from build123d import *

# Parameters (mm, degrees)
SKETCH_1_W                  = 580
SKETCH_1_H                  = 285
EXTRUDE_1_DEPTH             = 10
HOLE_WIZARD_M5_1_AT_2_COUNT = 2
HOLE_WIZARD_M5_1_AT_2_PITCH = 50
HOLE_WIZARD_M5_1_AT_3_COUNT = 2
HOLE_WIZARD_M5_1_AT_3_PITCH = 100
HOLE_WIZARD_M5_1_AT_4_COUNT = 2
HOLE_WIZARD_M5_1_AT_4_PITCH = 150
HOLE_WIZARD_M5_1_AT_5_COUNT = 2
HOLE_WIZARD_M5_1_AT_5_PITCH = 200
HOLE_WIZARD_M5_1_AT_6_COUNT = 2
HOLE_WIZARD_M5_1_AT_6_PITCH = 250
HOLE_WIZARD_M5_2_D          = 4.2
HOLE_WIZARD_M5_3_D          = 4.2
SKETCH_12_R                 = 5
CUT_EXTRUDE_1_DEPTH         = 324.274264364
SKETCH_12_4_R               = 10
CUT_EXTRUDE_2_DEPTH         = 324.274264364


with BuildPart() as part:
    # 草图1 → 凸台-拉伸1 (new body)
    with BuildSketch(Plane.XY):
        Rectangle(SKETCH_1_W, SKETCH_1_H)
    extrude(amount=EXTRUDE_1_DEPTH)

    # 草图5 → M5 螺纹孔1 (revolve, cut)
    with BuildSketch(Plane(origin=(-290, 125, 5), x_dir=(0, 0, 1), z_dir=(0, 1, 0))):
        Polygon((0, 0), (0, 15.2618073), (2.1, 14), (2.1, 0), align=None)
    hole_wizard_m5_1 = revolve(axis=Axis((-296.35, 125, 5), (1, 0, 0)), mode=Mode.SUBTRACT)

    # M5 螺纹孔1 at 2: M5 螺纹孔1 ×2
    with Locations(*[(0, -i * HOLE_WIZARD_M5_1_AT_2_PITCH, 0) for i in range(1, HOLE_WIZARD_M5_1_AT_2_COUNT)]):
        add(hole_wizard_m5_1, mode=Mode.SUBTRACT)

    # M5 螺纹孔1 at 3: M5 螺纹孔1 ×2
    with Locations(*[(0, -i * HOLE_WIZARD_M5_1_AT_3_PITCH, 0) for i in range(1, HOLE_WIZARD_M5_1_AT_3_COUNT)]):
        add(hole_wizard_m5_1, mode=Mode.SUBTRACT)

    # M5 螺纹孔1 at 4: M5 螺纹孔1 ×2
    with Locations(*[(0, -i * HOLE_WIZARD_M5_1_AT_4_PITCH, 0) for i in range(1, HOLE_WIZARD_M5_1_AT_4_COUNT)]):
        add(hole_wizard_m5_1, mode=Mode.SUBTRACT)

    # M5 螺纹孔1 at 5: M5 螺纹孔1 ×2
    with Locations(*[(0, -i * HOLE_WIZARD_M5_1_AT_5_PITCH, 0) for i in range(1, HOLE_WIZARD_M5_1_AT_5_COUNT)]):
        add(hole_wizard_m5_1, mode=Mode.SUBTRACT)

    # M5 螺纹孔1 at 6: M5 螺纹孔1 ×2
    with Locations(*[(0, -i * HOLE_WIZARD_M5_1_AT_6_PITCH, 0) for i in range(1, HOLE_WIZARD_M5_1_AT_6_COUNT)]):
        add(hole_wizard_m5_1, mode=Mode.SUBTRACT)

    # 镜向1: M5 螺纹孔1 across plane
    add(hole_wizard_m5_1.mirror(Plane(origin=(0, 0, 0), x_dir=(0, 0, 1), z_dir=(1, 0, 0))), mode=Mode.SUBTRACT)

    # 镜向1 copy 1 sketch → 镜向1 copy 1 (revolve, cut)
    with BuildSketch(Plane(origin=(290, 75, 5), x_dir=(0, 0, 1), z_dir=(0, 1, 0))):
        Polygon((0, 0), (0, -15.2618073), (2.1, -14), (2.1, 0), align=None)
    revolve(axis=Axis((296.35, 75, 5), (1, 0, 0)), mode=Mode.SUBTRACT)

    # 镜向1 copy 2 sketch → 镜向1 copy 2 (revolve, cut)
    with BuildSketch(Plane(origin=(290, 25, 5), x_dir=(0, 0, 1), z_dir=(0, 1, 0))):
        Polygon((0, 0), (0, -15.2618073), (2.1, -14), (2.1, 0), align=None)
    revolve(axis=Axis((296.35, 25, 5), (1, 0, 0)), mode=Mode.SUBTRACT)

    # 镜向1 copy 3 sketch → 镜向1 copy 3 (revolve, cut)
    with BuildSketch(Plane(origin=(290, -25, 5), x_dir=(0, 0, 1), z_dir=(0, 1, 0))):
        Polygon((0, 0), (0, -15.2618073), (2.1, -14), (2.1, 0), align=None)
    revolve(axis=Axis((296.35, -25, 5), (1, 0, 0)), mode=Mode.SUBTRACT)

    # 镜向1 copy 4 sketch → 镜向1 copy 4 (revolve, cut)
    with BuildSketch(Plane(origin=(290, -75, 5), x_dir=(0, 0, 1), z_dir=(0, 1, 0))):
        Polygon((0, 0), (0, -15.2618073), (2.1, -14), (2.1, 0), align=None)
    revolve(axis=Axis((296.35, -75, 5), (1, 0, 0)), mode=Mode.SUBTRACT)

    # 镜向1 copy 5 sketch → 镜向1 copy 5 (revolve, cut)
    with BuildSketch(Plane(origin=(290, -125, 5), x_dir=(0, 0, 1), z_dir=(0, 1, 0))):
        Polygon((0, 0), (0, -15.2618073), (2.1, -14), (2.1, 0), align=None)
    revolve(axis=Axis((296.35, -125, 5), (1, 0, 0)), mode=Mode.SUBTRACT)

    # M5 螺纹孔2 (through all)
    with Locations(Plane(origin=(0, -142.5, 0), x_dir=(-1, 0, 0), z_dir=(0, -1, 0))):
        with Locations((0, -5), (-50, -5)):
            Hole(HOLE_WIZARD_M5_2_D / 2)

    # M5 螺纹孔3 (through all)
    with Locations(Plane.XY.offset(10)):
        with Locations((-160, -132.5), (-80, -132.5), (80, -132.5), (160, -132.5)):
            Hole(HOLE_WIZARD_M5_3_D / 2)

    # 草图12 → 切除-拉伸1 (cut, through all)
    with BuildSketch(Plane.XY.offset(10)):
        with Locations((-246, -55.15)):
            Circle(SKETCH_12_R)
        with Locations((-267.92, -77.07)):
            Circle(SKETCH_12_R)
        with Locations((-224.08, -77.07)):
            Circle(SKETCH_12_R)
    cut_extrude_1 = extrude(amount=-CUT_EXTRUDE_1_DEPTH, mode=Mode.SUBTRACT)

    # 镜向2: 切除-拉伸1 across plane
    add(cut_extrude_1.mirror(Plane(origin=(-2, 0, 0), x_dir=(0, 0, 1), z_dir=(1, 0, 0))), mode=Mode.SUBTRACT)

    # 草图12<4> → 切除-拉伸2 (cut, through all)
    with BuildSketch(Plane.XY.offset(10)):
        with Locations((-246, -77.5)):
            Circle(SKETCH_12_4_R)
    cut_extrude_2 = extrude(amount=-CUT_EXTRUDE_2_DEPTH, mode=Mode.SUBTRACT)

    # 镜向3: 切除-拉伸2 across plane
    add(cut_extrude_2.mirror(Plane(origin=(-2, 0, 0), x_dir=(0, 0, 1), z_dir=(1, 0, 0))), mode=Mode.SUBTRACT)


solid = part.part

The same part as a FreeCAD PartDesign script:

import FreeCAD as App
import Part
import Sketcher
from FreeCAD import Vector
Q = App.Units.Quantity

doc = App.newDocument("Part")
body = doc.addObject("PartDesign::Body", "Body")

# Sketch on XY plane
sketch1 = doc.addObject("Sketcher::SketchObject", "Sketch")
body.addObject(sketch1)
sketch1.AttachmentSupport = (doc.XY_Plane, [""])
sketch1.MapMode = "FlatFace"
sketch1.addGeometry([
    Part.LineSegment(Vector(-290, 142, 0), Vector(-290, -142, 0)),
    Part.LineSegment(Vector(-290, -142, 0), Vector(290, -142, 0)),
    Part.LineSegment(Vector(290, -142, 0), Vector(290, 142, 0)),
    Part.LineSegment(Vector(290, 142, 0), Vector(-290, 142, 0)),
], False)
sketch1.addConstraint([
    Sketcher.Constraint("Coincident", 0, 2, 1, 1),
    Sketcher.Constraint("Coincident", 1, 2, 2, 1),
    Sketcher.Constraint("Coincident", 2, 2, 3, 1),
    Sketcher.Constraint("Coincident", 3, 2, 0, 1),
    Sketcher.Constraint("Vertical", 0),
    Sketcher.Constraint("Horizontal", 1),
    Sketcher.Constraint("Vertical", 2),
    Sketcher.Constraint("Horizontal", 3),
    Sketcher.Constraint("Symmetric", 0, 2, 2, 2, -1, 1),
    Sketcher.Constraint("DistanceX", 1, 1, 1, 2, Q("580 mm")),
    Sketcher.Constraint("DistanceY", 0, 2, 0, 1, Q("285 mm")),
])
pad1 = doc.addObject("PartDesign::Pad", "Pad")
body.addObject(pad1)
pad1.Profile = sketch1
pad1.Length = 10

# Sketch on XZ plane
sketch2 = doc.addObject("Sketcher::SketchObject", "Sketch001")
body.addObject(sketch2)
sketch2.AttachmentSupport = (doc.XZ_Plane, [""])
sketch2.MapMode = "FlatFace"
sketch2.AttachmentOffset = App.Placement(Vector(0, 0, -125), App.Rotation())
sketch2.addGeometry([
    Part.LineSegment(Vector(-274.7, 5, 0), Vector(-290, 5, 0)),
    Part.LineSegment(Vector(-290, 5, 0), Vector(-290, 7.1, 0)),
    Part.LineSegment(Vector(-290, 7.1, 0), Vector(-276, 7.1, 0)),
    Part.LineSegment(Vector(-276, 7.1, 0), Vector(-274.7, 5, 0)),
], False)
sketch2.addGeometry(Part.LineSegment(Vector(-290, 5, 0), Vector(-274.7, 5, 0)), True)  # axis
sketch2.addConstraint([
    Sketcher.Constraint("Coincident", 0, 2, 1, 1),
    Sketcher.Constraint("Coincident", 1, 2, 2, 1),
    Sketcher.Constraint("Coincident", 2, 2, 3, 1),
    Sketcher.Constraint("Coincident", 3, 2, 0, 1),
    Sketcher.Constraint("Horizontal", 0),
    Sketcher.Constraint("Vertical", 1),
    Sketcher.Constraint("Horizontal", 2),
    Sketcher.Constraint("Horizontal", 4),
    Sketcher.Constraint("Coincident", 4, 1, 0, 2),
    Sketcher.Constraint("Equal", 0, 4),
    Sketcher.Constraint("DistanceX", 2, 1, 2, 2, Q("14 mm")),
    Sketcher.Constraint("Angle", 3, Q("-59 deg")),
    Sketcher.Constraint("DistanceY", 1, 1, 1, 2, Q("2.1 mm")),
    Sketcher.Constraint("DistanceX", 0, 2, -1, 1, Q("290 mm")),
    Sketcher.Constraint("DistanceY", -1, 1, 0, 2, Q("5 mm")),
])
groove = doc.addObject("PartDesign::Groove", "Groove")
body.addObject(groove)
groove.Profile = sketch2
groove.ReferenceAxis = (sketch2, ["Axis0"])
groove.Angle = 360
doc.recompute()

linearpattern = doc.addObject("PartDesign::LinearPattern", "LinearPattern")
body.addObject(linearpattern)
linearpattern.Originals = [groove]
linearpattern.Direction = (doc.Y_Axis, [""])
linearpattern.Mode = "offset"
linearpattern.Offset = 50
linearpattern.Occurrences = 2
linearpattern.Reversed = True
body.Tip = linearpattern
doc.recompute()

linearpattern2 = doc.addObject("PartDesign::LinearPattern", "LinearPattern001")
body.addObject(linearpattern2)
linearpattern2.Originals = [groove]
linearpattern2.Direction = (doc.Y_Axis, [""])
linearpattern2.Mode = "offset"
linearpattern2.Offset = 100
linearpattern2.Occurrences = 2
linearpattern2.Reversed = True
body.Tip = linearpattern2
doc.recompute()

linearpattern3 = doc.addObject("PartDesign::LinearPattern", "LinearPattern002")
body.addObject(linearpattern3)
linearpattern3.Originals = [groove]
linearpattern3.Direction = (doc.Y_Axis, [""])
linearpattern3.Mode = "offset"
linearpattern3.Offset = 150
linearpattern3.Occurrences = 2
linearpattern3.Reversed = True
body.Tip = linearpattern3
doc.recompute()

linearpattern4 = doc.addObject("PartDesign::LinearPattern", "LinearPattern003")
body.addObject(linearpattern4)
linearpattern4.Originals = [groove]
linearpattern4.Direction = (doc.Y_Axis, [""])
linearpattern4.Mode = "offset"
linearpattern4.Offset = 200
linearpattern4.Occurrences = 2
linearpattern4.Reversed = True
body.Tip = linearpattern4
doc.recompute()

linearpattern5 = doc.addObject("PartDesign::LinearPattern", "LinearPattern004")
body.addObject(linearpattern5)
linearpattern5.Originals = [groove]
linearpattern5.Direction = (doc.Y_Axis, [""])
linearpattern5.Mode = "offset"
linearpattern5.Offset = 250
linearpattern5.Occurrences = 2
linearpattern5.Reversed = True
body.Tip = linearpattern5
doc.recompute()

mirrored = doc.addObject("PartDesign::Mirrored", "Mirrored")
body.addObject(mirrored)
mirrored.Originals = [groove]
mirrored.MirrorPlane = (doc.YZ_Plane, [""])
body.Tip = mirrored

# Sketch on XZ plane
sketch3 = doc.addObject("Sketcher::SketchObject", "Sketch002")
body.addObject(sketch3)
sketch3.AttachmentSupport = (doc.XZ_Plane, [""])
sketch3.MapMode = "FlatFace"
sketch3.AttachmentOffset = App.Placement(Vector(0, 0, -75), App.Rotation())
sketch3.addGeometry([
    Part.LineSegment(Vector(290, 5, 0), Vector(274.7, 5, 0)),
    Part.LineSegment(Vector(274.7, 5, 0), Vector(276, 7.1, 0)),
    Part.LineSegment(Vector(276, 7.1, 0), Vector(290, 7.1, 0)),
    Part.LineSegment(Vector(290, 7.1, 0), Vector(290, 5, 0)),
], False)
sketch3.addGeometry(Part.LineSegment(Vector(274.7, 5, 0), Vector(290, 5, 0)), True)  # axis
sketch3.addConstraint([
    Sketcher.Constraint("Coincident", 0, 2, 1, 1),
    Sketcher.Constraint("Coincident", 1, 2, 2, 1),
    Sketcher.Constraint("Coincident", 2, 2, 3, 1),
    Sketcher.Constraint("Coincident", 3, 2, 0, 1),
    Sketcher.Constraint("Horizontal", 0),
    Sketcher.Constraint("Horizontal", 2),
    Sketcher.Constraint("Vertical", 3),
    Sketcher.Constraint("Horizontal", 4),
    Sketcher.Constraint("Coincident", 4, 1, 0, 2),
    Sketcher.Constraint("Vertical", 2, 2, 4, 2),
    Sketcher.Constraint("DistanceX", 2, 1, 2, 2, Q("14 mm")),
    Sketcher.Constraint("Angle", 1, Q("59 deg")),
    Sketcher.Constraint("DistanceY", 3, 2, 3, 1, Q("2.1 mm")),
    Sketcher.Constraint("DistanceY", -1, 1, 0, 2, Q("5 mm")),
    Sketcher.Constraint("DistanceX", -1, 1, 1, 2, Q("276 mm")),
])
groove2 = doc.addObject("PartDesign::Groove", "Groove001")
body.addObject(groove2)
groove2.Profile = sketch3
groove2.ReferenceAxis = (sketch3, ["Axis0"])
groove2.Angle = 360

# Sketch on XZ plane
sketch4 = doc.addObject("Sketcher::SketchObject", "Sketch003")
body.addObject(sketch4)
sketch4.AttachmentSupport = (doc.XZ_Plane, [""])
sketch4.MapMode = "FlatFace"
sketch4.AttachmentOffset = App.Placement(Vector(0, 0, -25), App.Rotation())
sketch4.addGeometry([
    Part.LineSegment(Vector(290, 5, 0), Vector(274.7, 5, 0)),
    Part.LineSegment(Vector(274.7, 5, 0), Vector(276, 7.1, 0)),
    Part.LineSegment(Vector(276, 7.1, 0), Vector(290, 7.1, 0)),
    Part.LineSegment(Vector(290, 7.1, 0), Vector(290, 5, 0)),
], False)
sketch4.addGeometry(Part.LineSegment(Vector(274.7, 5, 0), Vector(290, 5, 0)), True)  # axis
sketch4.addConstraint([
    Sketcher.Constraint("Coincident", 0, 2, 1, 1),
    Sketcher.Constraint("Coincident", 1, 2, 2, 1),
    Sketcher.Constraint("Coincident", 2, 2, 3, 1),
    Sketcher.Constraint("Coincident", 3, 2, 0, 1),
    Sketcher.Constraint("Horizontal", 0),
    Sketcher.Constraint("Horizontal", 2),
    Sketcher.Constraint("Vertical", 3),
    Sketcher.Constraint("Horizontal", 4),
    Sketcher.Constraint("Coincident", 4, 1, 0, 2),
    Sketcher.Constraint("Vertical", 2, 2, 4, 2),
    Sketcher.Constraint("DistanceX", 2, 1, 2, 2, Q("14 mm")),
    Sketcher.Constraint("Angle", 1, Q("59 deg")),
    Sketcher.Constraint("DistanceY", 3, 2, 3, 1, Q("2.1 mm")),
    Sketcher.Constraint("DistanceY", -1, 1, 0, 2, Q("5 mm")),
    Sketcher.Constraint("DistanceX", -1, 1, 1, 2, Q("276 mm")),
])
groove3 = doc.addObject("PartDesign::Groove", "Groove002")
body.addObject(groove3)
groove3.Profile = sketch4
groove3.ReferenceAxis = (sketch4, ["Axis0"])
groove3.Angle = 360

# Sketch on XZ plane
sketch5 = doc.addObject("Sketcher::SketchObject", "Sketch004")
body.addObject(sketch5)
sketch5.AttachmentSupport = (doc.XZ_Plane, [""])
sketch5.MapMode = "FlatFace"
sketch5.AttachmentOffset = App.Placement(Vector(0, 0, 25), App.Rotation())
sketch5.addGeometry([
    Part.LineSegment(Vector(290, 5, 0), Vector(274.7, 5, 0)),
    Part.LineSegment(Vector(274.7, 5, 0), Vector(276, 7.1, 0)),
    Part.LineSegment(Vector(276, 7.1, 0), Vector(290, 7.1, 0)),
    Part.LineSegment(Vector(290, 7.1, 0), Vector(290, 5, 0)),
], False)
sketch5.addGeometry(Part.LineSegment(Vector(274.7, 5, 0), Vector(290, 5, 0)), True)  # axis
sketch5.addConstraint([
    Sketcher.Constraint("Coincident", 0, 2, 1, 1),
    Sketcher.Constraint("Coincident", 1, 2, 2, 1),
    Sketcher.Constraint("Coincident", 2, 2, 3, 1),
    Sketcher.Constraint("Coincident", 3, 2, 0, 1),
    Sketcher.Constraint("Horizontal", 0),
    Sketcher.Constraint("Horizontal", 2),
    Sketcher.Constraint("Vertical", 3),
    Sketcher.Constraint("Horizontal", 4),
    Sketcher.Constraint("Coincident", 4, 1, 0, 2),
    Sketcher.Constraint("Vertical", 2, 2, 4, 2),
    Sketcher.Constraint("DistanceX", 2, 1, 2, 2, Q("14 mm")),
    Sketcher.Constraint("Angle", 1, Q("59 deg")),
    Sketcher.Constraint("DistanceY", 3, 2, 3, 1, Q("2.1 mm")),
    Sketcher.Constraint("DistanceY", -1, 1, 0, 2, Q("5 mm")),
    Sketcher.Constraint("DistanceX", -1, 1, 1, 2, Q("276 mm")),
])
groove4 = doc.addObject("PartDesign::Groove", "Groove003")
body.addObject(groove4)
groove4.Profile = sketch5
groove4.ReferenceAxis = (sketch5, ["Axis0"])
groove4.Angle = 360

# Sketch on XZ plane
sketch6 = doc.addObject("Sketcher::SketchObject", "Sketch005")
body.addObject(sketch6)
sketch6.AttachmentSupport = (doc.XZ_Plane, [""])
sketch6.MapMode = "FlatFace"
sketch6.AttachmentOffset = App.Placement(Vector(0, 0, 75), App.Rotation())
sketch6.addGeometry([
    Part.LineSegment(Vector(290, 5, 0), Vector(274.7, 5, 0)),
    Part.LineSegment(Vector(274.7, 5, 0), Vector(276, 7.1, 0)),
    Part.LineSegment(Vector(276, 7.1, 0), Vector(290, 7.1, 0)),
    Part.LineSegment(Vector(290, 7.1, 0), Vector(290, 5, 0)),
], False)
sketch6.addGeometry(Part.LineSegment(Vector(274.7, 5, 0), Vector(290, 5, 0)), True)  # axis
sketch6.addConstraint([
    Sketcher.Constraint("Coincident", 0, 2, 1, 1),
    Sketcher.Constraint("Coincident", 1, 2, 2, 1),
    Sketcher.Constraint("Coincident", 2, 2, 3, 1),
    Sketcher.Constraint("Coincident", 3, 2, 0, 1),
    Sketcher.Constraint("Horizontal", 0),
    Sketcher.Constraint("Horizontal", 2),
    Sketcher.Constraint("Vertical", 3),
    Sketcher.Constraint("Horizontal", 4),
    Sketcher.Constraint("Coincident", 4, 1, 0, 2),
    Sketcher.Constraint("Vertical", 2, 2, 4, 2),
    Sketcher.Constraint("DistanceX", 2, 1, 2, 2, Q("14 mm")),
    Sketcher.Constraint("Angle", 1, Q("59 deg")),
    Sketcher.Constraint("DistanceY", 3, 2, 3, 1, Q("2.1 mm")),
    Sketcher.Constraint("DistanceY", -1, 1, 0, 2, Q("5 mm")),
    Sketcher.Constraint("DistanceX", -1, 1, 1, 2, Q("276 mm")),
])
groove5 = doc.addObject("PartDesign::Groove", "Groove004")
body.addObject(groove5)
groove5.Profile = sketch6
groove5.ReferenceAxis = (sketch6, ["Axis0"])
groove5.Angle = 360

# Sketch on XZ plane
sketch7 = doc.addObject("Sketcher::SketchObject", "Sketch006")
body.addObject(sketch7)
sketch7.AttachmentSupport = (doc.XZ_Plane, [""])
sketch7.MapMode = "FlatFace"
sketch7.AttachmentOffset = App.Placement(Vector(0, 0, 125), App.Rotation())
sketch7.addGeometry([
    Part.LineSegment(Vector(290, 5, 0), Vector(274.7, 5, 0)),
    Part.LineSegment(Vector(274.7, 5, 0), Vector(276, 7.1, 0)),
    Part.LineSegment(Vector(276, 7.1, 0), Vector(290, 7.1, 0)),
    Part.LineSegment(Vector(290, 7.1, 0), Vector(290, 5, 0)),
], False)
sketch7.addGeometry(Part.LineSegment(Vector(274.7, 5, 0), Vector(290, 5, 0)), True)  # axis
sketch7.addConstraint([
    Sketcher.Constraint("Coincident", 0, 2, 1, 1),
    Sketcher.Constraint("Coincident", 1, 2, 2, 1),
    Sketcher.Constraint("Coincident", 2, 2, 3, 1),
    Sketcher.Constraint("Coincident", 3, 2, 0, 1),
    Sketcher.Constraint("Horizontal", 0),
    Sketcher.Constraint("Horizontal", 2),
    Sketcher.Constraint("Vertical", 3),
    Sketcher.Constraint("Horizontal", 4),
    Sketcher.Constraint("Coincident", 4, 1, 0, 2),
    Sketcher.Constraint("Vertical", 2, 2, 4, 2),
    Sketcher.Constraint("DistanceX", 2, 1, 2, 2, Q("14 mm")),
    Sketcher.Constraint("Angle", 1, Q("59 deg")),
    Sketcher.Constraint("DistanceY", 3, 2, 3, 1, Q("2.1 mm")),
    Sketcher.Constraint("DistanceY", -1, 1, 0, 2, Q("5 mm")),
    Sketcher.Constraint("DistanceX", -1, 1, 1, 2, Q("276 mm")),
])
groove6 = doc.addObject("PartDesign::Groove", "Groove005")
body.addObject(groove6)
groove6.Profile = sketch7
groove6.ReferenceAxis = (sketch7, ["Axis0"])
groove6.Angle = 360

# Sketch on XZ plane
sketch8 = doc.addObject("Sketcher::SketchObject", "Sketch007")
body.addObject(sketch8)
sketch8.AttachmentSupport = (doc.XZ_Plane, [""])
sketch8.MapMode = "FlatFace"
sketch8.AttachmentOffset = App.Placement(Vector(0, 0, 142.5), App.Rotation())
sketch8.addGeometry([
    Part.Circle(Vector(0, 5, 0), Vector(0, 0, 1), 2.1),
    Part.Circle(Vector(50, 5, 0), Vector(0, 0, 1), 2.1),
], False)
sketch8.addConstraint([
    Sketcher.Constraint("Equal", 0, 1),
    Sketcher.Constraint("PointOnObject", 0, 3, -2),
    Sketcher.Constraint("Horizontal", 0, 3, 1, 3),
    Sketcher.Constraint("Diameter", 0, Q("4.2 mm")),
    Sketcher.Constraint("DistanceY", -1, 1, 0, 3, Q("5 mm")),
    Sketcher.Constraint("DistanceX", -1, 1, 1, 3, Q("50 mm")),
])
doc.recompute()
hole = doc.addObject("PartDesign::Hole", "Hole")
body.addObject(hole)
hole.Profile = sketch8
hole.ThreadType = "None"
hole.Diameter = 4.2
hole.DepthType = "ThroughAll"

# Sketch on XY plane
sketch9 = doc.addObject("Sketcher::SketchObject", "Sketch008")
body.addObject(sketch9)
sketch9.AttachmentSupport = (doc.XY_Plane, [""])
sketch9.MapMode = "FlatFace"
sketch9.AttachmentOffset = App.Placement(Vector(0, 0, 10), App.Rotation())
sketch9.addGeometry([
    Part.Circle(Vector(-160, -132.5, 0), Vector(0, 0, 1), 2.1),
    Part.Circle(Vector(-80, -132.5, 0), Vector(0, 0, 1), 2.1),
    Part.Circle(Vector(80, -132.5, 0), Vector(0, 0, 1), 2.1),
    Part.Circle(Vector(160, -132.5, 0), Vector(0, 0, 1), 2.1),
], False)
sketch9.addConstraint([
    Sketcher.Constraint("Equal", 0, 1),
    Sketcher.Constraint("Equal", 1, 2),
    Sketcher.Constraint("Equal", 2, 3),
    Sketcher.Constraint("Symmetric", 1, 3, 2, 3, -2),
    Sketcher.Constraint("Symmetric", 0, 3, 3, 3, -2),
    Sketcher.Constraint("Horizontal", 0, 3, 1, 3),
    Sketcher.Constraint("Diameter", 0, Q("4.2 mm")),
    Sketcher.Constraint("DistanceX", 0, 3, -1, 1, Q("160 mm")),
    Sketcher.Constraint("DistanceX", 1, 3, -1, 1, Q("80 mm")),
    Sketcher.Constraint("DistanceY", 0, 3, -1, 1, Q("132.5 mm")),
])
doc.recompute()
hole2 = doc.addObject("PartDesign::Hole", "Hole001")
body.addObject(hole2)
hole2.Profile = sketch9
hole2.ThreadType = "None"
hole2.Diameter = 4.2
hole2.DepthType = "ThroughAll"

# Sketch on XY plane
sketch10 = doc.addObject("Sketcher::SketchObject", "Sketch009")
body.addObject(sketch10)
sketch10.AttachmentSupport = (doc.XY_Plane, [""])
sketch10.MapMode = "FlatFace"
sketch10.AttachmentOffset = App.Placement(Vector(0, 0, 10), App.Rotation())
sketch10.addGeometry([
    Part.Circle(Vector(-246, -55, 0), Vector(0, 0, 1), 5),
    Part.Circle(Vector(-268, -77, 0), Vector(0, 0, 1), 5),
    Part.Circle(Vector(-224, -77, 0), Vector(0, 0, 1), 5),
], False)
sketch10.addConstraint([
    Sketcher.Constraint("Equal", 0, 1),
    Sketcher.Constraint("Equal", 1, 2),
    Sketcher.Constraint("Horizontal", 1, 3, 2, 3),
    Sketcher.Constraint("Diameter", 0, Q("10 mm")),
    Sketcher.Constraint("DistanceX", 0, 3, -1, 1, Q("246 mm")),
    Sketcher.Constraint("DistanceY", 0, 3, -1, 1, Q("55.15 mm")),
    Sketcher.Constraint("DistanceX", 1, 3, -1, 1, Q("267.92 mm")),
    Sketcher.Constraint("DistanceY", 1, 3, -1, 1, Q("77.07 mm")),
    Sketcher.Constraint("DistanceX", 2, 3, -1, 1, Q("224.08 mm")),
])
pocket1 = doc.addObject("PartDesign::Pocket", "Pocket")
body.addObject(pocket1)
pocket1.Profile = sketch10
pocket1.Type = "ThroughAll"
doc.recompute()

datumplane = doc.addObject("PartDesign::Plane", "DatumPlane")
body.addObject(datumplane)
datumplane.AttachmentSupport = (doc.YZ_Plane, [""])
datumplane.MapMode = "FlatFace"
datumplane.AttachmentOffset = App.Placement(Vector(0, 0, -2), App.Rotation())
mirrored2 = doc.addObject("PartDesign::Mirrored", "Mirrored001")
body.addObject(mirrored2)
mirrored2.Originals = [pocket1]
mirrored2.MirrorPlane = (datumplane, [""])
body.Tip = mirrored2

# Sketch on XY plane
sketch11 = doc.addObject("Sketcher::SketchObject", "Sketch010")
body.addObject(sketch11)
sketch11.AttachmentSupport = (doc.XY_Plane, [""])
sketch11.MapMode = "FlatFace"
sketch11.AttachmentOffset = App.Placement(Vector(0, 0, 10), App.Rotation())
sketch11.addGeometry(Part.Circle(Vector(-246, -78, 0), Vector(0, 0, 1), 10), False)
sketch11.addConstraint([
    Sketcher.Constraint("Diameter", 0, Q("20 mm")),
    Sketcher.Constraint("DistanceX", 0, 3, -1, 1, Q("246 mm")),
    Sketcher.Constraint("DistanceY", 0, 3, -1, 1, Q("77.5 mm")),
])
pocket2 = doc.addObject("PartDesign::Pocket", "Pocket001")
body.addObject(pocket2)
pocket2.Profile = sketch11
pocket2.Type = "ThroughAll"
doc.recompute()

datumplane2 = doc.addObject("PartDesign::Plane", "DatumPlane001")
body.addObject(datumplane2)
datumplane2.AttachmentSupport = (doc.YZ_Plane, [""])
datumplane2.MapMode = "FlatFace"
datumplane2.AttachmentOffset = App.Placement(Vector(0, 0, -2), App.Rotation())
mirrored3 = doc.addObject("PartDesign::Mirrored", "Mirrored002")
body.addObject(mirrored3)
mirrored3.Originals = [pocket2]
mirrored3.MirrorPlane = (datumplane2, [""])
body.Tip = mirrored3

doc.recompute()
